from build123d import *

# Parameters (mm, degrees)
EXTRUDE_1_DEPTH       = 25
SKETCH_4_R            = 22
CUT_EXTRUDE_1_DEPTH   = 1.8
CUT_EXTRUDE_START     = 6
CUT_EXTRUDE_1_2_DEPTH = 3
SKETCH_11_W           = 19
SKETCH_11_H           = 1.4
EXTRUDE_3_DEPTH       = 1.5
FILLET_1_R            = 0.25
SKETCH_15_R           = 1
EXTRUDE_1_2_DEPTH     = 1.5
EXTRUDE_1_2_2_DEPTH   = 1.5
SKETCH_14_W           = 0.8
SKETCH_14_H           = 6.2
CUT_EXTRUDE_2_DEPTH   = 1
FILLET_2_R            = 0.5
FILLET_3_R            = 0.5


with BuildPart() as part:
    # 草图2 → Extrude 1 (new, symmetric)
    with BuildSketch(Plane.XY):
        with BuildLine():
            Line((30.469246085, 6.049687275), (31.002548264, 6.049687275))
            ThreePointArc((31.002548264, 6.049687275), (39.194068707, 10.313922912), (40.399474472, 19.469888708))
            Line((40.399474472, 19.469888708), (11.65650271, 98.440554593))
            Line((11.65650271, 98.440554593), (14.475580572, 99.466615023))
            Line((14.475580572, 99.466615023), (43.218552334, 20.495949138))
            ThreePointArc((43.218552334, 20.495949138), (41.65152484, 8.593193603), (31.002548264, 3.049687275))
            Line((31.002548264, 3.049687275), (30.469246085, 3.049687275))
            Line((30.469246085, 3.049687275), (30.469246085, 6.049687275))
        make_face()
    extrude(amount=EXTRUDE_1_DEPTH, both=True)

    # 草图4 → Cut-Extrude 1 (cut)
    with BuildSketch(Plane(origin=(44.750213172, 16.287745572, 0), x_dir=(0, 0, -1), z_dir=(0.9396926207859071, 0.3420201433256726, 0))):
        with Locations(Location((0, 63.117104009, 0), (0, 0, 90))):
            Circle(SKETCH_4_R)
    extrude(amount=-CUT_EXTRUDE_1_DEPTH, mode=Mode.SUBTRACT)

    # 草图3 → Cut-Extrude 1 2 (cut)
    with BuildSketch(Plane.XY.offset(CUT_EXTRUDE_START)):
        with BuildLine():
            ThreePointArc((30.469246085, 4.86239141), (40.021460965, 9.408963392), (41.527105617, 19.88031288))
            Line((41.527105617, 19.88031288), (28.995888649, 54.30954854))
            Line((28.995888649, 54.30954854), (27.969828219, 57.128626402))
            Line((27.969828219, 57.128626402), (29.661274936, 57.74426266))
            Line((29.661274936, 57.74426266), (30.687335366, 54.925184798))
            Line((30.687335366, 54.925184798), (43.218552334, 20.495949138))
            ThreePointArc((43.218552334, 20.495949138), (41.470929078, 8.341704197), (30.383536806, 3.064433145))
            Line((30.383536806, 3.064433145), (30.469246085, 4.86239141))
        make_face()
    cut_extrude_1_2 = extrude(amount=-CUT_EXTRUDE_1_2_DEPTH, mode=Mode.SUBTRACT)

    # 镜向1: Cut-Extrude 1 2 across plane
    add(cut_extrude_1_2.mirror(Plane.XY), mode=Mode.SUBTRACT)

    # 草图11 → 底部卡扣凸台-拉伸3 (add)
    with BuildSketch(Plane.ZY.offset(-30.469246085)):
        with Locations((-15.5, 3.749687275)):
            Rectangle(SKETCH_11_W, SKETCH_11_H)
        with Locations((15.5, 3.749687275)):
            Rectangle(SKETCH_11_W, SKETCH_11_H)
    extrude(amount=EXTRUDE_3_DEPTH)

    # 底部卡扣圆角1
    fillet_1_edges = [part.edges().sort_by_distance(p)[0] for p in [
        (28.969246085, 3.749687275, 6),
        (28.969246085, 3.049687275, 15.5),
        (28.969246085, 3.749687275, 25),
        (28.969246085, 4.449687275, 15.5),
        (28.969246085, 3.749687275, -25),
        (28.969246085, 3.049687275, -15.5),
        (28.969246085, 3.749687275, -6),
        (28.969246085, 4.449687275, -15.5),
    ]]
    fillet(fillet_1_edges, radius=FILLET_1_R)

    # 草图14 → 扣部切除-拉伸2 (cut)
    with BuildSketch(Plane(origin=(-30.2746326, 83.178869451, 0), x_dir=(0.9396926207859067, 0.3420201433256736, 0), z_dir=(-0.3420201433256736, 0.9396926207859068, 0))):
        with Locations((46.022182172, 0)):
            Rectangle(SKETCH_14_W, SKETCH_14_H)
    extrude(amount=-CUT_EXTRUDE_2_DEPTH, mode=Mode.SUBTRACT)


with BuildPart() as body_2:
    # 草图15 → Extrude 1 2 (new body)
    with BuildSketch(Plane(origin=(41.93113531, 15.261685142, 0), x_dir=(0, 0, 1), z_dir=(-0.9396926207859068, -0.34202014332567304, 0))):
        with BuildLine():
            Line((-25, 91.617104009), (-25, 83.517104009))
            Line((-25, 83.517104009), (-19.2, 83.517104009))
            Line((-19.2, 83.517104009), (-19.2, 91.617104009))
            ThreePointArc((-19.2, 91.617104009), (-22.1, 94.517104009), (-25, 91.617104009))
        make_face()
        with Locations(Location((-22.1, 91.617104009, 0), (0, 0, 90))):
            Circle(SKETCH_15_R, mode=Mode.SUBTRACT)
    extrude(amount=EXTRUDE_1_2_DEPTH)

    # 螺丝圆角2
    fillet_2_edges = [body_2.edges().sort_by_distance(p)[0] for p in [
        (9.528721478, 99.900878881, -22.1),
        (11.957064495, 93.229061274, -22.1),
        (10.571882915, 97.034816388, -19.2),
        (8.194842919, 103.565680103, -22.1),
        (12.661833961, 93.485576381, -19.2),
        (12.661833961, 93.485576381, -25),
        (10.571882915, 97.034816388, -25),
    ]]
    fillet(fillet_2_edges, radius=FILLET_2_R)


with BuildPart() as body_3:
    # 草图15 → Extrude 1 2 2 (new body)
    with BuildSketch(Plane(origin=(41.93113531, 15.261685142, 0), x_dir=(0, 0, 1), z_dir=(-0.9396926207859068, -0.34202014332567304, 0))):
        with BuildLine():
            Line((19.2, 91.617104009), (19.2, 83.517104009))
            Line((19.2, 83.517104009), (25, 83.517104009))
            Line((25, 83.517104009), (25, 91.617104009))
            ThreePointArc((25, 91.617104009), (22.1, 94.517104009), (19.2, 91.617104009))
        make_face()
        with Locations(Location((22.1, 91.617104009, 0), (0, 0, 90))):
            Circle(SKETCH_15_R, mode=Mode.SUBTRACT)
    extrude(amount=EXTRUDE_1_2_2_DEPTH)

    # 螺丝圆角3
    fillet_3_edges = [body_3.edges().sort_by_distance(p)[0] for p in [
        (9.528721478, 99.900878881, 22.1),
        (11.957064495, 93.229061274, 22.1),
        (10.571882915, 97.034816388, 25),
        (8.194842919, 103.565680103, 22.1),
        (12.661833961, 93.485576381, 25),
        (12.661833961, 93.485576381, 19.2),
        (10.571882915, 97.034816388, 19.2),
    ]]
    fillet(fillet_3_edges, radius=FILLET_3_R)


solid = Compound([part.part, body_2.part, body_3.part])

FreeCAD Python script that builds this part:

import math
import FreeCAD as App
import Part
import Sketcher
Q = App.Units.Quantity


def edges_at(feature, points):
    """Names of the edges that pass closest to the given points."""
    edges = feature.Shape.Edges
    near = lambda p: min(range(len(edges)), key=lambda i: edges[i].distToShape(Part.Vertex(*p))[0])
    return sorted({f"Edge{near(p) + 1}" for p in points})


def add_polygon(sketch, points):
    """Adds a closed chain of lines whose ends are joined by coincident constraints."""
    first, n = sketch.GeometryCount, len(points)
    for a, b in zip(points, points[1:] + points[:1]):
        sketch.addGeometry(Part.LineSegment(App.Vector(*a, 0), App.Vector(*b, 0)), False)
    for i in range(n):
        sketch.addConstraint(Sketcher.Constraint("Coincident", first + i, 2, first + (i + 1) % n, 1))

doc = App.newDocument("Part")
body = doc.addObject("PartDesign::Body", "Body")

# Sketch on XY plane
sketch1 = doc.addObject("Sketcher::SketchObject", "Sketch")
body.addObject(sketch1)
sketch1.AttachmentSupport = (doc.XY_Plane, [""])
sketch1.MapMode = "FlatFace"
sketch1.addGeometry([
    Part.LineSegment(App.Vector(31.002548, 6.049687, 0), App.Vector(30.469246, 6.049687, 0)),  # 0
    Part.LineSegment(App.Vector(30.469246, 6.049687, 0), App.Vector(30.469246, 3.049687, 0)),  # 1
    Part.LineSegment(App.Vector(30.469246, 3.049687, 0), App.Vector(31.002548, 3.049687, 0)),  # 2
    Part.ArcOfCircle(Part.Circle(App.Vector(31.002548, 16.049687, 0), App.Vector(0, 0, 1), 13), math.radians(-90), math.radians(20)),  # 3
    Part.LineSegment(App.Vector(43.218552, 20.495949, 0), App.Vector(14.475581, 99.466615, 0)),  # 4
    Part.LineSegment(App.Vector(14.475581, 99.466615, 0), App.Vector(11.656503, 98.440555, 0)),  # 5
    Part.LineSegment(App.Vector(11.656503, 98.440555, 0), App.Vector(40.399474, 19.469889, 0)),  # 6
    Part.ArcOfCircle(Part.Circle(App.Vector(31.002548, 16.049687, 0), App.Vector(0, 0, 1), 10), math.radians(-90), math.radians(20)),  # 7
], False)
sketch1.addConstraint([
    Sketcher.Constraint("Coincident", 0, 2, 1, 1),
    Sketcher.Constraint("Coincident", 1, 2, 2, 1),
    Sketcher.Constraint("Tangent", 2, 2, 3, 1),
    Sketcher.Constraint("Tangent", 3, 2, 4, 1),
    Sketcher.Constraint("Coincident", 4, 2, 5, 1),
    Sketcher.Constraint("Coincident", 5, 2, 6, 1),
    Sketcher.Constraint("Tangent", 6, 2, 7, 2),
    Sketcher.Constraint("Tangent", 7, 1, 0, 1),
    Sketcher.Constraint("Horizontal", 0),
    Sketcher.Constraint("Vertical", 1),
    Sketcher.Constraint("Horizontal", 2),
    Sketcher.Constraint("Coincident", 7, 3, 3, 3),
    Sketcher.Constraint("Perpendicular", 4, 5),
    Sketcher.Constraint("Perpendicular", 5, 6),
    Sketcher.Constraint("Radius", 3, Q("13 mm")),
    Sketcher.Constraint("Radius", 7, Q("10 mm")),
    Sketcher.Constraint("Angle", 4, Q("110 deg")),
    Sketcher.Constraint("DistanceX", 0, 2, 0, 1, Q("0.533302 mm")),
    Sketcher.Constraint("DistanceX", -1, 1, 3, 3, Q("31.002548 mm")),
    Sketcher.Constraint("DistanceY", -1, 1, 3, 2, Q("20.495949 mm")),
    Sketcher.Constraint("DistanceX", -1, 1, 4, 2, Q("14.475581 mm")),
])
pad1 = doc.addObject("PartDesign::Pad", "Pad")
body.addObject(pad1)
pad1.Profile = sketch1
pad1.Length = 50
pad1.Midplane = True

# Sketch on an angled plane
sketch2 = doc.addObject("Sketcher::SketchObject", "Sketch001")
body.addObject(sketch2)
sketch2.Placement = App.Placement(App.Vector(44.750213, 16.287746, 0), App.Rotation(App.Vector(0, 0, -1), App.Vector(-0.342020143, 0.939692621, 0), App.Vector(0.939692621, 0.342020143, 0), "ZXY"))
sketch2.addGeometry(Part.Circle(App.Vector(0, 63.117104, 0), App.Vector(0, 0, 1), 22), False)
sketch2.addConstraint([
    Sketcher.Constraint("PointOnObject", 0, 3, -2),
    Sketcher.Constraint("Diameter", 0, Q("44 mm")),
    Sketcher.Constraint("DistanceY", -1, 1, 0, 3, Q("63.117104 mm")),
])
pocket1 = doc.addObject("PartDesign::Pocket", "Pocket")
body.addObject(pocket1)
pocket1.Profile = sketch2
pocket1.Length = 1.8

# Sketch on XY plane
sketch3 = doc.addObject("Sketcher::SketchObject", "Sketch002")
body.addObject(sketch3)
sketch3.AttachmentSupport = (doc.XY_Plane, [""])
sketch3.MapMode = "FlatFace"
sketch3.AttachmentOffset = App.Placement(App.Vector(0, 0, 6), App.Rotation())
sketch3.addGeometry([
    Part.ArcOfCircle(Part.Circle(App.Vector(31.002548, 16.049687, 0), App.Vector(0, 0, 1), 11.2), math.radians(-92.729243), math.radians(20)),  # 0
    Part.LineSegment(App.Vector(30.469246, 4.862391, 0), App.Vector(30.383537, 3.064433, 0)),  # 1
    Part.ArcOfCircle(Part.Circle(App.Vector(31.002548, 16.049687, 0), App.Vector(0, 0, 1), 13), math.radians(-92.729243), math.radians(20)),  # 2
    Part.LineSegment(App.Vector(43.218552, 20.495949, 0), App.Vector(30.687335, 54.925185, 0)),  # 3
    Part.LineSegment(App.Vector(30.687335, 54.925185, 0), App.Vector(29.661275, 57.744263, 0)),  # 4
    Part.LineSegment(App.Vector(29.661275, 57.744263, 0), App.Vector(27.969828, 57.128626, 0)),  # 5
    Part.LineSegment(App.Vector(27.969828, 57.128626, 0), App.Vector(28.995889, 54.309549, 0)),  # 6
    Part.LineSegment(App.Vector(28.995889, 54.309549, 0), App.Vector(41.527106, 19.880313, 0)),  # 7
], False)
sketch3.addConstraint([
    Sketcher.Constraint("Coincident", 0, 1, 1, 1),
    Sketcher.Constraint("Coincident", 1, 2, 2, 1),
    Sketcher.Constraint("Tangent", 2, 2, 3, 1),
    Sketcher.Constraint("Coincident", 3, 2, 4, 1),
    Sketcher.Constraint("Coincident", 4, 2, 5, 1),
    Sketcher.Constraint("Coincident", 5, 2, 6, 1),
    Sketcher.Constraint("Coincident", 6, 2, 7, 1),
    Sketcher.Constraint("Tangent", 7, 2, 0, 2),
    Sketcher.Constraint("Coincident", 2, 3, 0, 3),
    Sketcher.Constraint("Parallel", 3, 4),
    Sketcher.Constraint("Perpendicular", 4, 5),
    Sketcher.Constraint("Perpendicular", 5, 6),
    Sketcher.Constraint("Parallel", 6, 7),
    Sketcher.Constraint("Equal", 4, 6),
    Sketcher.Constraint("Radius", 2, Q("13 mm")),
    Sketcher.Constraint("Radius", 0, Q("11.2 mm")),
    Sketcher.Constraint("Angle", 3, Q("110 deg")),
    Sketcher.Constraint("Distance", 4, Q("3 mm")),
    Sketcher.Constraint("DistanceX", 1, 2, 3, 2, Q("0.303799 mm")),
    Sketcher.Constraint("DistanceY", 2, 2, 6, 2, Q("33.813599 mm")),
    Sketcher.Constraint("DistanceX", -1, 1, 0, 3, Q("31.002548 mm")),
    Sketcher.Constraint("DistanceY", -1, 1, 0, 1, Q("4.862391 mm")),
    Sketcher.Constraint("DistanceY", -1, 1, 2, 2, Q("20.495949 mm")),
])
pocket2 = doc.addObject("PartDesign::Pocket", "Pocket001")
body.addObject(pocket2)
pocket2.Profile = sketch3
pocket2.Length = 3
doc.recompute()

mirrored = doc.addObject("PartDesign::Mirrored", "Mirrored")
body.addObject(mirrored)
mirrored.Originals = [pocket2]
mirrored.MirrorPlane = (doc.XY_Plane, [""])
body.Tip = mirrored

# Sketch on YZ plane
sketch4 = doc.addObject("Sketcher::SketchObject", "Sketch003")
body.addObject(sketch4)
sketch4.AttachmentSupport = (doc.YZ_Plane, [""])
sketch4.MapMode = "FlatFace"
sketch4.AttachmentOffset = App.Placement(App.Vector(0, 0, 30.469246), App.Rotation())
add_polygon(sketch4, [(4.449687, -25), (3.049687, -25), (3.049687, -6), (4.449687, -6)])  # lines 0-3
add_polygon(sketch4, [(4.449687, 6), (3.049687, 6), (3.049687, 25), (4.449687, 25)])  # lines 4-7
sketch4.addConstraint([
    Sketcher.Constraint("Horizontal", 0),
    Sketcher.Constraint("Vertical", 1),
    Sketcher.Constraint("Horizontal", 2),
    Sketcher.Constraint("Vertical", 3),
    Sketcher.Constraint("Horizontal", 4),
    Sketcher.Constraint("Vertical", 5),
    Sketcher.Constraint("Horizontal", 6),
    Sketcher.Constraint("Vertical", 7),
    Sketcher.Constraint("Symmetric", 1, 2, 4, 2, -1),
    Sketcher.Constraint("Symmetric", 3, 2, 6, 2, -1),
    Sketcher.Constraint("DistanceY", 1, 1, 1, 2, Q("19 mm")),
    Sketcher.Constraint("DistanceX", 0, 2, 0, 1, Q("1.4 mm")),
    Sketcher.Constraint("DistanceY", 0, 2, -1, 1, Q("25 mm")),
    Sketcher.Constraint("DistanceX", -1, 1, 0, 2, Q("3.049687 mm")),
])
pad2 = doc.addObject("PartDesign::Pad", "Pad001")
body.addObject(pad2)
pad2.Profile = sketch4
pad2.Length = 1.5
pad2.Reversed = True
doc.recompute()

fillet = doc.addObject("PartDesign::Fillet", "Fillet")
body.addObject(fillet)
fillet.Base = (pad2, edges_at(pad2, [
    (28.969, 3.75, 6),
    (28.969, 3.05, 15.5),
    (28.969, 3.75, 25),
    (28.969, 4.45, 15.5),
    (28.969, 3.75, -25),
    (28.969, 3.05, -15.5),
    (28.969, 3.75, -6),
    (28.969, 4.45, -15.5),
]))
fillet.Radius = 0.25

# Sketch on an angled plane
sketch5 = doc.addObject("Sketcher::SketchObject", "Sketch004")
body.addObject(sketch5)
sketch5.Placement = App.Placement(App.Vector(-30.274633, 83.178869, 0), App.Rotation(App.Vector(0.939692621, 0.342020143, 0), App.Vector(0, 0, -1), App.Vector(-0.342020143, 0.939692621, 0), "ZXY"))
add_polygon(sketch5, [(45.622182, 3.1), (45.622182, -3.1), (46.422182, -3.1), (46.422182, 3.1)])  # lines 0-3
sketch5.addConstraint([
    Sketcher.Constraint("Vertical", 0),
    Sketcher.Constraint("Horizontal", 1),
    Sketcher.Constraint("Vertical", 2),
    Sketcher.Constraint("Horizontal", 3),
    Sketcher.Constraint("DistanceX", 1, 1, 1, 2, Q("0.8 mm")),
    Sketcher.Constraint("DistanceY", 0, 2, 0, 1, Q("6.2 mm")),
    Sketcher.Constraint("DistanceY", 0, 2, -1, 1, Q("3.1 mm")),
    Sketcher.Constraint("DistanceX", -1, 1, 0, 2, Q("45.622182 mm")),
])
pocket3 = doc.addObject("PartDesign::Pocket", "Pocket002")
body.addObject(pocket3)
pocket3.Profile = sketch5
pocket3.Length = 1
body2 = doc.addObject("PartDesign::Body", "Body001")

# Sketch on an angled plane
sketch6 = doc.addObject("Sketcher::SketchObject", "Sketch005")
body2.addObject(sketch6)
sketch6.Placement = App.Placement(App.Vector(41.931135, 15.261685, 0), App.Rotation(App.Vector(0, 0, 1), App.Vector(-0.342020143, 0.939692621, 0), App.Vector(-0.939692621, -0.342020143, 0), "ZXY"))
sketch6.addGeometry([
    Part.LineSegment(App.Vector(-25, 91.617104, 0), App.Vector(-25, 83.517104, 0)),  # 0
    Part.LineSegment(App.Vector(-25, 83.517104, 0), App.Vector(-19.2, 83.517104, 0)),  # 1
    Part.LineSegment(App.Vector(-19.2, 83.517104, 0), App.Vector(-19.2, 91.617104, 0)),  # 2
    Part.ArcOfCircle(Part.Circle(App.Vector(-22.1, 91.617104, 0), App.Vector(0, 0, 1), 2.9), math.radians(0), math.radians(180)),  # 3
    Part.Circle(App.Vector(-22.1, 91.617104, 0), App.Vector(0, 0, 1), 1),  # 4
], False)
sketch6.addConstraint([
    Sketcher.Constraint("Coincident", 0, 2, 1, 1),
    Sketcher.Constraint("Coincident", 1, 2, 2, 1),
    Sketcher.Constraint("Tangent", 2, 2, 3, 1),
    Sketcher.Constraint("Tangent", 3, 2, 0, 1),
    Sketcher.Constraint("Vertical", 0),
    Sketcher.Constraint("Horizontal", 1),
    Sketcher.Constraint("Vertical", 2),
    Sketcher.Constraint("Coincident", 4, 3, 3, 3),
    Sketcher.Constraint("Diameter", 4, Q("2 mm")),
    Sketcher.Constraint("Radius", 3, Q("2.9 mm")),
    Sketcher.Constraint("DistanceY", 0, 2, 0, 1, Q("8.1 mm")),
    Sketcher.Constraint("DistanceX", 0, 2, -1, 1, Q("25 mm")),
    Sketcher.Constraint("DistanceY", -1, 1, 3, 3, Q("91.617104 mm")),
])
pad3 = doc.addObject("PartDesign::Pad", "Pad002")
body2.addObject(pad3)
pad3.Profile = sketch6
pad3.Length = 1.5
doc.recompute()

fillet2 = doc.addObject("PartDesign::Fillet", "Fillet001")
body2.addObject(fillet2)
fillet2.Base = (pad3, edges_at(pad3, [
    (9.529, 99.901, -22.1),
    (11.957, 93.229, -22.1),
    (10.572, 97.035, -19.2),
    (8.195, 103.566, -22.1),
    (12.662, 93.486, -19.2),
    (12.662, 93.486, -25),
    (10.572, 97.035, -25),
]))
fillet2.Radius = 0.5
body3 = doc.addObject("PartDesign::Body", "Body002")

# Sketch on an angled plane
sketch7 = doc.addObject("Sketcher::SketchObject", "Sketch006")
body3.addObject(sketch7)
sketch7.Placement = App.Placement(App.Vector(41.931135, 15.261685, 0), App.Rotation(App.Vector(0, 0, 1), App.Vector(-0.342020143, 0.939692621, 0), App.Vector(-0.939692621, -0.342020143, 0), "ZXY"))
sketch7.addGeometry([
    Part.LineSegment(App.Vector(19.2, 91.617104, 0), App.Vector(19.2, 83.517104, 0)),  # 0
    Part.LineSegment(App.Vector(19.2, 83.517104, 0), App.Vector(25, 83.517104, 0)),  # 1
    Part.LineSegment(App.Vector(25, 83.517104, 0), App.Vector(25, 91.617104, 0)),  # 2
    Part.ArcOfCircle(Part.Circle(App.Vector(22.1, 91.617104, 0), App.Vector(0, 0, 1), 2.9), math.radians(0), math.radians(180)),  # 3
    Part.Circle(App.Vector(22.1, 91.617104, 0), App.Vector(0, 0, 1), 1),  # 4
], False)
sketch7.addConstraint([
    Sketcher.Constraint("Coincident", 0, 2, 1, 1),
    Sketcher.Constraint("Coincident", 1, 2, 2, 1),
    Sketcher.Constraint("Tangent", 2, 2, 3, 1),
    Sketcher.Constraint("Tangent", 3, 2, 0, 1),
    Sketcher.Constraint("Vertical", 0),
    Sketcher.Constraint("Horizontal", 1),
    Sketcher.Constraint("Vertical", 2),
    Sketcher.Constraint("Coincident", 4, 3, 3, 3),
    Sketcher.Constraint("Diameter", 4, Q("2 mm")),
    Sketcher.Constraint("Radius", 3, Q("2.9 mm")),
    Sketcher.Constraint("DistanceY", 0, 2, 0, 1, Q("8.1 mm")),
    Sketcher.Constraint("DistanceX", -1, 1, 1, 2, Q("25 mm")),
    Sketcher.Constraint("DistanceY", -1, 1, 3, 3, Q("91.617104 mm")),
])
pad4 = doc.addObject("PartDesign::Pad", "Pad003")
body3.addObject(pad4)
pad4.Profile = sketch7
pad4.Length = 1.5
doc.recompute()

fillet3 = doc.addObject("PartDesign::Fillet", "Fillet002")
body3.addObject(fillet3)
fillet3.Base = (pad4, edges_at(pad4, [
    (9.529, 99.901, 22.1),
    (11.957, 93.229, 22.1),
    (10.572, 97.035, 25),
    (8.195, 103.566, 22.1),
    (12.662, 93.486, 25),
    (12.662, 93.486, 19.2),
    (10.572, 97.035, 19.2),
]))
fillet3.Radius = 0.5

doc.recompute()
